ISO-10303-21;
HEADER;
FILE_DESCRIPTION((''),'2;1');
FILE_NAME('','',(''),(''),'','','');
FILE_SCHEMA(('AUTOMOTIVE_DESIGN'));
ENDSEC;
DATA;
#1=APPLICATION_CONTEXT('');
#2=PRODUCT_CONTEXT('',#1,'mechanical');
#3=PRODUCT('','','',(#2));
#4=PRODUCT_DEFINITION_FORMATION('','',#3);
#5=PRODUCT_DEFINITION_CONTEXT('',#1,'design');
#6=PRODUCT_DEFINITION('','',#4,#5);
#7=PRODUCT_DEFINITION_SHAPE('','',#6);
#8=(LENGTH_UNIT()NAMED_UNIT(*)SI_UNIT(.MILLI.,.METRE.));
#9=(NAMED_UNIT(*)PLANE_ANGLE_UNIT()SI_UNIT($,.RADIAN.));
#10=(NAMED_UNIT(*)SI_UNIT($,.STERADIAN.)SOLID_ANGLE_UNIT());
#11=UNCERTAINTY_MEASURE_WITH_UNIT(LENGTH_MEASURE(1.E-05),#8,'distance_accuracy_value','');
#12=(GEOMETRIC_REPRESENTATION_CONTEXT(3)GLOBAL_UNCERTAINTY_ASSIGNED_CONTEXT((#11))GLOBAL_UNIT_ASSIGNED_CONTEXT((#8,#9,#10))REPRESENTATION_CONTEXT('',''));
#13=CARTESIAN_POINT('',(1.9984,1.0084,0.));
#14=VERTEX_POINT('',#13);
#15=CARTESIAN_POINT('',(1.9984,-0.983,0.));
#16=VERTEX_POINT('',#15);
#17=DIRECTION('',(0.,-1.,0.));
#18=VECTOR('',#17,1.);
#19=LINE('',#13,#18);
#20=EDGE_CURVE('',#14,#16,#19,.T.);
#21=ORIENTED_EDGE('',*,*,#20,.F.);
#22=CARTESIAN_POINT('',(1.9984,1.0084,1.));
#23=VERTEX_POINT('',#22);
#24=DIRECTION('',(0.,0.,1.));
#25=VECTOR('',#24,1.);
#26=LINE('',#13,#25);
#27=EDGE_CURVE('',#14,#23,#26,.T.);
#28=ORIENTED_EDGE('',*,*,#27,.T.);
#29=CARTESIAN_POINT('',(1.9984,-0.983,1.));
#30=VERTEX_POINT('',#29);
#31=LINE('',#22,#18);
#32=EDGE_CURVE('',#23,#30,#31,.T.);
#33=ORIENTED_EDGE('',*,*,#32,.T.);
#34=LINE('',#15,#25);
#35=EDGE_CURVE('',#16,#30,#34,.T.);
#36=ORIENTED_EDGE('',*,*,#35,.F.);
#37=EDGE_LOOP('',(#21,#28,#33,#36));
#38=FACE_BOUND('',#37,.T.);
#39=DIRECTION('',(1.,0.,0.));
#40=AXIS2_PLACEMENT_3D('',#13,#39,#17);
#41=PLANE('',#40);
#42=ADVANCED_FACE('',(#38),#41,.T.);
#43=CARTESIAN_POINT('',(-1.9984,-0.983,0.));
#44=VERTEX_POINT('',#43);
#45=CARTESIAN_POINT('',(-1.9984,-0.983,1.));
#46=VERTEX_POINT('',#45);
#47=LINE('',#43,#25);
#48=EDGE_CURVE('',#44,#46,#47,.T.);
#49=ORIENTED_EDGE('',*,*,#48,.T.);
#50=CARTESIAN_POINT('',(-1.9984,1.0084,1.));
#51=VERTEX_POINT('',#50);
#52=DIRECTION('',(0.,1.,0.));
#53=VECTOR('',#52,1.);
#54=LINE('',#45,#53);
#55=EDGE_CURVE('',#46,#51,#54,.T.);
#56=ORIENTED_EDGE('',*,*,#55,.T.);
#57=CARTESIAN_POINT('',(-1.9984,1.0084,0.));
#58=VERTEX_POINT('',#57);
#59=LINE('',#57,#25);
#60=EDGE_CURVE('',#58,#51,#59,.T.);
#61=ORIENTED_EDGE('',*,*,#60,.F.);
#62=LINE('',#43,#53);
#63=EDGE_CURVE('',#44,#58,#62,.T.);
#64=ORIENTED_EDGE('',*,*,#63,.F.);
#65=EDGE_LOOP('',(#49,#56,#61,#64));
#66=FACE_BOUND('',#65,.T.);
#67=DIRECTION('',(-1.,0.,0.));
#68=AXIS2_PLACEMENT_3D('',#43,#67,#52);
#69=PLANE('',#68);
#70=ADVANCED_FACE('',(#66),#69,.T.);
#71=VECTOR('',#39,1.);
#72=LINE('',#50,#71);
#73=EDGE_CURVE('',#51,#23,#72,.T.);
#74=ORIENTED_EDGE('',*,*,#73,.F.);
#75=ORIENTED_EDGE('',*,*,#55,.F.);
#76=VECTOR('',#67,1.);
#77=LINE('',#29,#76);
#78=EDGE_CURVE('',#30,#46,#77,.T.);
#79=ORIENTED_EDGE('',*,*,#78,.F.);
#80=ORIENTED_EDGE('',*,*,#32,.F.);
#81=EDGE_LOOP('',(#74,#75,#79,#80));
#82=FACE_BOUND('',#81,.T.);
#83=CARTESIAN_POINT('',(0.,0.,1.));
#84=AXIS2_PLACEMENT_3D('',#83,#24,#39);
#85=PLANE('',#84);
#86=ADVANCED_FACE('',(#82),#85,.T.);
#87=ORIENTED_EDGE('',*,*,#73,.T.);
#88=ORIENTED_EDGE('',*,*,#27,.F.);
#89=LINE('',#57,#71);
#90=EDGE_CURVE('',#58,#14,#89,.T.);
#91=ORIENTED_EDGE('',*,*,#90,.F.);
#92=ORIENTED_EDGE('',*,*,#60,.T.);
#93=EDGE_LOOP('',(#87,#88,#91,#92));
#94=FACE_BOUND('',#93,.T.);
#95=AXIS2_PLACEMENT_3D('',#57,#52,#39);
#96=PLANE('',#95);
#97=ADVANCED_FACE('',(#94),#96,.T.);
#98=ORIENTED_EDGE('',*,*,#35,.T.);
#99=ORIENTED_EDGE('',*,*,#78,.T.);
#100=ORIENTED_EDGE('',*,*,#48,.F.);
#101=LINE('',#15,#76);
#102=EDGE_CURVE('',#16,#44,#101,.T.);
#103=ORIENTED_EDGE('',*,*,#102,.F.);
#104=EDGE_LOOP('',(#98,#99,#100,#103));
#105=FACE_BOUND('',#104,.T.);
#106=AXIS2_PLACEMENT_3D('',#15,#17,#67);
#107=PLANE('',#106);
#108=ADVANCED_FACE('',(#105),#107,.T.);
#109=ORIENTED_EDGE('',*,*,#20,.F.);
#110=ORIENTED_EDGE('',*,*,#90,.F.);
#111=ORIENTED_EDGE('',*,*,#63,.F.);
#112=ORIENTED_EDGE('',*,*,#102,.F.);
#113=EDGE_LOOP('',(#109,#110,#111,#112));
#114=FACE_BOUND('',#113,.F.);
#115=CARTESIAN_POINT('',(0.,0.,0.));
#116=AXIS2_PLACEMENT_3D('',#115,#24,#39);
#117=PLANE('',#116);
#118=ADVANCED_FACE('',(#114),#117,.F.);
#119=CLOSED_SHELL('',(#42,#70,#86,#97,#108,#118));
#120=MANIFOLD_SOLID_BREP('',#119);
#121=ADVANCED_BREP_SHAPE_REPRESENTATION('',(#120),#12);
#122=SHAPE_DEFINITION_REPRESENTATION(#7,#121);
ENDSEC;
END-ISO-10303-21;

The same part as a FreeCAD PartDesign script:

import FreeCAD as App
import Part
import Sketcher

V = App.Vector
Q = App.Units.Quantity

doc = App.newDocument("Part")
body = doc.addObject("PartDesign::Body", "Body")

sketch1 = body.newObject("Sketcher::SketchObject", "Sketch")
sketch1.AttachmentSupport = (doc.getObject("XY_Plane"), [""])
sketch1.MapMode = "FlatFace"
sketch1.addGeometry(Part.LineSegment(V(1.9984, 1.0084, 0), V(-1.9984, 1.0084, 0)), False)
sketch1.addGeometry(Part.LineSegment(V(-1.9984, 1.0084, 0), V(-1.9984, -0.983, 0)), False)
sketch1.addGeometry(Part.LineSegment(V(-1.9984, -0.983, 0), V(1.9984, -0.983, 0)), False)
sketch1.addGeometry(Part.LineSegment(V(1.9984, -0.983, 0), V(1.9984, 1.0084, 0)), False)
sketch1.addConstraint(Sketcher.Constraint("Coincident", 0, 2, 1, 1))
sketch1.addConstraint(Sketcher.Constraint("Coincident", 1, 2, 2, 1))
sketch1.addConstraint(Sketcher.Constraint("Coincident", 2, 2, 3, 1))
sketch1.addConstraint(Sketcher.Constraint("Coincident", 3, 2, 0, 1))
sketch1.addConstraint(Sketcher.Constraint("Horizontal", 0))
sketch1.addConstraint(Sketcher.Constraint("Vertical", 1))
sketch1.addConstraint(Sketcher.Constraint("Horizontal", 2))
sketch1.addConstraint(Sketcher.Constraint("Vertical", 3))
sketch1.addConstraint(Sketcher.Constraint("DistanceX", 0, 2, 0, 1, Q("3.9968 mm")))
sketch1.addConstraint(Sketcher.Constraint("DistanceY", 1, 2, 1, 1, Q("1.9914 mm")))
sketch1.addConstraint(Sketcher.Constraint("DistanceY", 1, 2, -1, 1, Q("0.983 mm")))
sketch1.addConstraint(Sketcher.Constraint("DistanceX", 0, 2, -1, 1, Q("1.9984 mm")))
pad1 = body.newObject("PartDesign::Pad", "Pad")
pad1.Profile = sketch1
pad1.Length = 1

doc.recompute()
